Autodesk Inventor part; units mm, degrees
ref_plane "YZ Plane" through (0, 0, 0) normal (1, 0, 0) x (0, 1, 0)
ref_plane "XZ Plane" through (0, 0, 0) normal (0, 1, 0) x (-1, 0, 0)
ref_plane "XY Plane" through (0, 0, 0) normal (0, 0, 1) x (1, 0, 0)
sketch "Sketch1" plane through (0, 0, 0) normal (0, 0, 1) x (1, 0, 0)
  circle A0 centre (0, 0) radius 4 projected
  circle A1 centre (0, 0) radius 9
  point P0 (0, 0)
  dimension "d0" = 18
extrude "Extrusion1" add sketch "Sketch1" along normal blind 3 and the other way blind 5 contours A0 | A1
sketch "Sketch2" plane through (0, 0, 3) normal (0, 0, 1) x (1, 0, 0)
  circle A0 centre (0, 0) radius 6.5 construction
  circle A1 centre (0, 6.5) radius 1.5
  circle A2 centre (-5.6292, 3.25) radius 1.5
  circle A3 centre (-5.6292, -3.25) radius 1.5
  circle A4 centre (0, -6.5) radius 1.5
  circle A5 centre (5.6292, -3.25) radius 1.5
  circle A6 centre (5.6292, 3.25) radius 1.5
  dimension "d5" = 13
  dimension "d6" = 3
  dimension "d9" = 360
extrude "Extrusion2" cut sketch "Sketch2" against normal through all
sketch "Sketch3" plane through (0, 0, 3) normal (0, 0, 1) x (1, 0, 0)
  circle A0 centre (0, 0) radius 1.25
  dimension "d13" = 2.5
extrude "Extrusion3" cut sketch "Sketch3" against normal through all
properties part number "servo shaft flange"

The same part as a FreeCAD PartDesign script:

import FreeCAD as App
import Part
import Sketcher

V = App.Vector

doc = App.newDocument("Part")
params = doc.addObject("Spreadsheet::Sheet", "Params")
for row, (alias, value) in enumerate([
    ("sketch1_diameter", "18 mm"),
    ("pad1_length", "3 mm"),
    ("pad1_length2", "5 mm"),
    ("sketch2_diameter", "3 mm"),
    ("sketch3_diameter", "2.5 mm"),
], start=1):
    params.set(f"A{row}", alias)
    params.set(f"B{row}", "=" + value)
    params.setAlias(f"B{row}", alias)

body = doc.addObject("PartDesign::Body", "Body")

# Sketch on XY plane
sketch1 = body.newObject("Sketcher::SketchObject", "Sketch")
sketch1.AttachmentSupport = (doc.getObject("XY_Plane"), [""])
sketch1.MapMode = "FlatFace"
sketch1.addGeometry(Part.Circle(V(0, 0, 0), V(0, 0, 1), 9), False)
sketch1.addConstraint([
    Sketcher.Constraint("Coincident", 0, 3, -1, 1),
    Sketcher.Constraint("Diameter", 0, 18.0),
])
sketch1.setExpression("Constraints[1]", "Params.sketch1_diameter")
pad1 = body.newObject("PartDesign::Pad", "Pad")
pad1.Profile = sketch1
pad1.Type = "TwoLengths"
pad1.setExpression("Length", "Params.pad1_length")
pad1.setExpression("Length2", "Params.pad1_length2")

# Sketch on XY plane
sketch2 = body.newObject("Sketcher::SketchObject", "Sketch001")
sketch2.AttachmentSupport = (doc.getObject("XY_Plane"), [""])
sketch2.MapMode = "FlatFace"
sketch2.AttachmentOffset = App.Placement(V(0, 0, 3), App.Rotation())
sketch2.addGeometry([
    Part.Circle(V(0, 6.5, 0), V(0, 0, 1), 1.5),  # 0
    Part.Circle(V(-5.6, 3.2, 0), V(0, 0, 1), 1.5),  # 1
    Part.Circle(V(-5.6, -3.2, 0), V(0, 0, 1), 1.5),  # 2
    Part.Circle(V(0, -6.5, 0), V(0, 0, 1), 1.5),  # 3
    Part.Circle(V(5.6, -3.2, 0), V(0, 0, 1), 1.5),  # 4
    Part.Circle(V(5.6, 3.2, 0), V(0, 0, 1), 1.5),  # 5
], False)
sketch2.addConstraint([
    Sketcher.Constraint("Equal", 0, 1),
    Sketcher.Constraint("Equal", 1, 2),
    Sketcher.Constraint("Equal", 2, 3),
    Sketcher.Constraint("Equal", 3, 4),
    Sketcher.Constraint("Equal", 4, 5),
    Sketcher.Constraint("Symmetric", 0, 3, 3, 3, -1, 1),
    Sketcher.Constraint("Symmetric", 1, 3, 4, 3, -1, 1),
    Sketcher.Constraint("Symmetric", 2, 3, 5, 3, -1, 1),
    Sketcher.Constraint("Symmetric", 2, 3, 4, 3, -2),
    Sketcher.Constraint("PointOnObject", 0, 3, -2),
    Sketcher.Constraint("Diameter", 0, 3.0),
    Sketcher.Constraint("DistanceY", 3, 3, 0, 3, 13.0),
    Sketcher.Constraint("DistanceY", 2, 3, 1, 3, 6.5),
    Sketcher.Constraint("DistanceX", 1, 3, -1, 1, 5.6292),
])
sketch2.setExpression("Constraints[10]", "Params.sketch2_diameter")
pocket1 = body.newObject("PartDesign::Pocket", "Pocket")
pocket1.Profile = sketch2
pocket1.Type = "ThroughAll"

# Sketch on XY plane
sketch3 = body.newObject("Sketcher::SketchObject", "Sketch002")
sketch3.AttachmentSupport = (doc.getObject("XY_Plane"), [""])
sketch3.MapMode = "FlatFace"
sketch3.AttachmentOffset = App.Placement(V(0, 0, 3), App.Rotation())
sketch3.addGeometry(Part.Circle(V(0, 0, 0), V(0, 0, 1), 1.2), False)
sketch3.addConstraint([
    Sketcher.Constraint("Coincident", 0, 3, -1, 1),
    Sketcher.Constraint("Diameter", 0, 2.5),
])
sketch3.setExpression("Constraints[1]", "Params.sketch3_diameter")
pocket2 = body.newObject("PartDesign::Pocket", "Pocket001")
pocket2.Profile = sketch3
pocket2.Type = "ThroughAll"

doc.recompute()
